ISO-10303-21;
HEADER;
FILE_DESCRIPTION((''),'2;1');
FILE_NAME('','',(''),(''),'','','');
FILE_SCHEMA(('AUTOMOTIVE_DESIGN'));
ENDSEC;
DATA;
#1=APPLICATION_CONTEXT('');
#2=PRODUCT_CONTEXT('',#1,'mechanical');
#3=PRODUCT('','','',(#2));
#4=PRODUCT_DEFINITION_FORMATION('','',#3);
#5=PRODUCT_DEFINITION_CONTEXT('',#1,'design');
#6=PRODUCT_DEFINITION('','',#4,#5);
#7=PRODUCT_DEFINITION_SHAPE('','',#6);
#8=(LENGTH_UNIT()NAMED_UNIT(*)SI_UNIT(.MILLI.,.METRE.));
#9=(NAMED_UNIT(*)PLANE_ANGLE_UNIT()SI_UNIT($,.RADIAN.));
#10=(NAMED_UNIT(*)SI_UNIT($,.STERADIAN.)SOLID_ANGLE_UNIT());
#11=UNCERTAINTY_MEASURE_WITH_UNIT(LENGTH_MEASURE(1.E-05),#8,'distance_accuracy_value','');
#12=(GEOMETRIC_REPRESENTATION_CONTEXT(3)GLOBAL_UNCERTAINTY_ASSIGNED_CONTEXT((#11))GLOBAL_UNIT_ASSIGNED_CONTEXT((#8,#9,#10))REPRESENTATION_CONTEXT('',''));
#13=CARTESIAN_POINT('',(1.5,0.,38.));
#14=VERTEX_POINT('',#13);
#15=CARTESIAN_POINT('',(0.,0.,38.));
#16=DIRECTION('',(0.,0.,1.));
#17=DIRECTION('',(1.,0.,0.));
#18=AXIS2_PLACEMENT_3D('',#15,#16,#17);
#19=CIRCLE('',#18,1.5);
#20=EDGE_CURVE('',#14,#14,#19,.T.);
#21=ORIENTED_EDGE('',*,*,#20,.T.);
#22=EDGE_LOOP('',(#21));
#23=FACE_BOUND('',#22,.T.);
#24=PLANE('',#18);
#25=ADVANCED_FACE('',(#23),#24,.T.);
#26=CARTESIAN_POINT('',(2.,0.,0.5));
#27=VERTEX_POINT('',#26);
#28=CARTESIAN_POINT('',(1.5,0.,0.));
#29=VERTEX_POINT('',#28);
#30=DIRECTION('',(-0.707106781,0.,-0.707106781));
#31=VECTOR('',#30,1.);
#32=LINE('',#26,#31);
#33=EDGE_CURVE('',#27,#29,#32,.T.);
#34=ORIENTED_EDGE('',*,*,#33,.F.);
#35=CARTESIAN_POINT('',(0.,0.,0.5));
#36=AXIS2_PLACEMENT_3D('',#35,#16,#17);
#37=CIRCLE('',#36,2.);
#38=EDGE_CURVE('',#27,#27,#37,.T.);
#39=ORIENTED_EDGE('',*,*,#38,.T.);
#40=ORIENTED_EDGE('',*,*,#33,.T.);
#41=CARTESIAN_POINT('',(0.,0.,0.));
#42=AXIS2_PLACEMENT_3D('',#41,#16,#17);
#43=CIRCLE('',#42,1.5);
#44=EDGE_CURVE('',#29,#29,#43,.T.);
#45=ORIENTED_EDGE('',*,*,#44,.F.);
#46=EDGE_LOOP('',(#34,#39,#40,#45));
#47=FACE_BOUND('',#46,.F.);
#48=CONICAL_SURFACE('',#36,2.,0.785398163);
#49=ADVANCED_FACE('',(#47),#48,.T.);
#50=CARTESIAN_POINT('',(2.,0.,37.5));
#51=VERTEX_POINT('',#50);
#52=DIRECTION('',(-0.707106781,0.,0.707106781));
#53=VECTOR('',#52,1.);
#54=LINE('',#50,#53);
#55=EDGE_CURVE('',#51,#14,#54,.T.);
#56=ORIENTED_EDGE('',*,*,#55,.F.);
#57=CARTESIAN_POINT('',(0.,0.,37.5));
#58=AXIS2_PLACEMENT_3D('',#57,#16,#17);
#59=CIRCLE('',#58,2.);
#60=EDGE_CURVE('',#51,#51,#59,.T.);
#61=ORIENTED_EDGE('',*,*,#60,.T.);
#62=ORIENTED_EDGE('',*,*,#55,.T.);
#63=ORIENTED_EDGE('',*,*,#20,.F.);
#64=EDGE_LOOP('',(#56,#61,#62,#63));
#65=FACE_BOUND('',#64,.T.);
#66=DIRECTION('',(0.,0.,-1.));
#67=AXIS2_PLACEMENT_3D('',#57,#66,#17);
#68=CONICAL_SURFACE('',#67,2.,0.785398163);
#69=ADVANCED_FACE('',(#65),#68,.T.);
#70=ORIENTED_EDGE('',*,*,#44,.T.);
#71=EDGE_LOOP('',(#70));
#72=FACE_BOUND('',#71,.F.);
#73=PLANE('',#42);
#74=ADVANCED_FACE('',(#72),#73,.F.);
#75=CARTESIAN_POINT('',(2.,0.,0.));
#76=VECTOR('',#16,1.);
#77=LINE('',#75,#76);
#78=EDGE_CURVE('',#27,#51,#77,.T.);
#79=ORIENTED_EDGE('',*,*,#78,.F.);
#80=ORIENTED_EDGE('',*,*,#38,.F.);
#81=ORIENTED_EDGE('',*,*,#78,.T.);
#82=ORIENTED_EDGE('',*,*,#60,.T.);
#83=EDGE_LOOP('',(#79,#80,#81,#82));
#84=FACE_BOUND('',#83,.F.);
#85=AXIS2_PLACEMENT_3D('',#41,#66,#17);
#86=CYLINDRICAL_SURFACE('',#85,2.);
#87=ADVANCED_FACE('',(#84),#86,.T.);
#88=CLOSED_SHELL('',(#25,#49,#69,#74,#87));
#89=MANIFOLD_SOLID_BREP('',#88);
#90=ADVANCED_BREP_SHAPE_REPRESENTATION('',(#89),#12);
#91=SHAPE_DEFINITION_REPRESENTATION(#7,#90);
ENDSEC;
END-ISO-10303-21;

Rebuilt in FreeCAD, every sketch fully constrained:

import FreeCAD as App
import Part
import Sketcher
from FreeCAD import Vector
Q = App.Units.Quantity


def edges_at(feature, points):
    """Names of the edges that pass closest to the given points."""
    edges = feature.Shape.Edges
    near = lambda p: min(range(len(edges)), key=lambda i: edges[i].distToShape(Part.Vertex(*p))[0])
    return sorted({f"Edge{near(p) + 1}" for p in points})

doc = App.newDocument("Part")
body = doc.addObject("PartDesign::Body", "Body")

sketch1 = body.newObject("Sketcher::SketchObject", "Sketch")
sketch1.AttachmentSupport = (doc.getObject("XY_Plane"), [""])
sketch1.MapMode = "FlatFace"
sketch1.addGeometry(Part.Circle(Vector(0, 0, 0), Vector(0, 0, 1), 2), False)
sketch1.addConstraint([
    Sketcher.Constraint("Coincident", 0, 3, -1, 1),
    Sketcher.Constraint("Diameter", 0, Q("4 mm")),
])
pad1 = body.newObject("PartDesign::Pad", "Pad")
pad1.Profile = sketch1
pad1.Length = 38
doc.recompute()

chamfer = body.newObject("PartDesign::Chamfer", "Chamfer")
chamfer.Base = (pad1, edges_at(pad1, [(-2, 0, 0), (-2, 0, 38)]))
chamfer.Size = 0.5

doc.recompute()
